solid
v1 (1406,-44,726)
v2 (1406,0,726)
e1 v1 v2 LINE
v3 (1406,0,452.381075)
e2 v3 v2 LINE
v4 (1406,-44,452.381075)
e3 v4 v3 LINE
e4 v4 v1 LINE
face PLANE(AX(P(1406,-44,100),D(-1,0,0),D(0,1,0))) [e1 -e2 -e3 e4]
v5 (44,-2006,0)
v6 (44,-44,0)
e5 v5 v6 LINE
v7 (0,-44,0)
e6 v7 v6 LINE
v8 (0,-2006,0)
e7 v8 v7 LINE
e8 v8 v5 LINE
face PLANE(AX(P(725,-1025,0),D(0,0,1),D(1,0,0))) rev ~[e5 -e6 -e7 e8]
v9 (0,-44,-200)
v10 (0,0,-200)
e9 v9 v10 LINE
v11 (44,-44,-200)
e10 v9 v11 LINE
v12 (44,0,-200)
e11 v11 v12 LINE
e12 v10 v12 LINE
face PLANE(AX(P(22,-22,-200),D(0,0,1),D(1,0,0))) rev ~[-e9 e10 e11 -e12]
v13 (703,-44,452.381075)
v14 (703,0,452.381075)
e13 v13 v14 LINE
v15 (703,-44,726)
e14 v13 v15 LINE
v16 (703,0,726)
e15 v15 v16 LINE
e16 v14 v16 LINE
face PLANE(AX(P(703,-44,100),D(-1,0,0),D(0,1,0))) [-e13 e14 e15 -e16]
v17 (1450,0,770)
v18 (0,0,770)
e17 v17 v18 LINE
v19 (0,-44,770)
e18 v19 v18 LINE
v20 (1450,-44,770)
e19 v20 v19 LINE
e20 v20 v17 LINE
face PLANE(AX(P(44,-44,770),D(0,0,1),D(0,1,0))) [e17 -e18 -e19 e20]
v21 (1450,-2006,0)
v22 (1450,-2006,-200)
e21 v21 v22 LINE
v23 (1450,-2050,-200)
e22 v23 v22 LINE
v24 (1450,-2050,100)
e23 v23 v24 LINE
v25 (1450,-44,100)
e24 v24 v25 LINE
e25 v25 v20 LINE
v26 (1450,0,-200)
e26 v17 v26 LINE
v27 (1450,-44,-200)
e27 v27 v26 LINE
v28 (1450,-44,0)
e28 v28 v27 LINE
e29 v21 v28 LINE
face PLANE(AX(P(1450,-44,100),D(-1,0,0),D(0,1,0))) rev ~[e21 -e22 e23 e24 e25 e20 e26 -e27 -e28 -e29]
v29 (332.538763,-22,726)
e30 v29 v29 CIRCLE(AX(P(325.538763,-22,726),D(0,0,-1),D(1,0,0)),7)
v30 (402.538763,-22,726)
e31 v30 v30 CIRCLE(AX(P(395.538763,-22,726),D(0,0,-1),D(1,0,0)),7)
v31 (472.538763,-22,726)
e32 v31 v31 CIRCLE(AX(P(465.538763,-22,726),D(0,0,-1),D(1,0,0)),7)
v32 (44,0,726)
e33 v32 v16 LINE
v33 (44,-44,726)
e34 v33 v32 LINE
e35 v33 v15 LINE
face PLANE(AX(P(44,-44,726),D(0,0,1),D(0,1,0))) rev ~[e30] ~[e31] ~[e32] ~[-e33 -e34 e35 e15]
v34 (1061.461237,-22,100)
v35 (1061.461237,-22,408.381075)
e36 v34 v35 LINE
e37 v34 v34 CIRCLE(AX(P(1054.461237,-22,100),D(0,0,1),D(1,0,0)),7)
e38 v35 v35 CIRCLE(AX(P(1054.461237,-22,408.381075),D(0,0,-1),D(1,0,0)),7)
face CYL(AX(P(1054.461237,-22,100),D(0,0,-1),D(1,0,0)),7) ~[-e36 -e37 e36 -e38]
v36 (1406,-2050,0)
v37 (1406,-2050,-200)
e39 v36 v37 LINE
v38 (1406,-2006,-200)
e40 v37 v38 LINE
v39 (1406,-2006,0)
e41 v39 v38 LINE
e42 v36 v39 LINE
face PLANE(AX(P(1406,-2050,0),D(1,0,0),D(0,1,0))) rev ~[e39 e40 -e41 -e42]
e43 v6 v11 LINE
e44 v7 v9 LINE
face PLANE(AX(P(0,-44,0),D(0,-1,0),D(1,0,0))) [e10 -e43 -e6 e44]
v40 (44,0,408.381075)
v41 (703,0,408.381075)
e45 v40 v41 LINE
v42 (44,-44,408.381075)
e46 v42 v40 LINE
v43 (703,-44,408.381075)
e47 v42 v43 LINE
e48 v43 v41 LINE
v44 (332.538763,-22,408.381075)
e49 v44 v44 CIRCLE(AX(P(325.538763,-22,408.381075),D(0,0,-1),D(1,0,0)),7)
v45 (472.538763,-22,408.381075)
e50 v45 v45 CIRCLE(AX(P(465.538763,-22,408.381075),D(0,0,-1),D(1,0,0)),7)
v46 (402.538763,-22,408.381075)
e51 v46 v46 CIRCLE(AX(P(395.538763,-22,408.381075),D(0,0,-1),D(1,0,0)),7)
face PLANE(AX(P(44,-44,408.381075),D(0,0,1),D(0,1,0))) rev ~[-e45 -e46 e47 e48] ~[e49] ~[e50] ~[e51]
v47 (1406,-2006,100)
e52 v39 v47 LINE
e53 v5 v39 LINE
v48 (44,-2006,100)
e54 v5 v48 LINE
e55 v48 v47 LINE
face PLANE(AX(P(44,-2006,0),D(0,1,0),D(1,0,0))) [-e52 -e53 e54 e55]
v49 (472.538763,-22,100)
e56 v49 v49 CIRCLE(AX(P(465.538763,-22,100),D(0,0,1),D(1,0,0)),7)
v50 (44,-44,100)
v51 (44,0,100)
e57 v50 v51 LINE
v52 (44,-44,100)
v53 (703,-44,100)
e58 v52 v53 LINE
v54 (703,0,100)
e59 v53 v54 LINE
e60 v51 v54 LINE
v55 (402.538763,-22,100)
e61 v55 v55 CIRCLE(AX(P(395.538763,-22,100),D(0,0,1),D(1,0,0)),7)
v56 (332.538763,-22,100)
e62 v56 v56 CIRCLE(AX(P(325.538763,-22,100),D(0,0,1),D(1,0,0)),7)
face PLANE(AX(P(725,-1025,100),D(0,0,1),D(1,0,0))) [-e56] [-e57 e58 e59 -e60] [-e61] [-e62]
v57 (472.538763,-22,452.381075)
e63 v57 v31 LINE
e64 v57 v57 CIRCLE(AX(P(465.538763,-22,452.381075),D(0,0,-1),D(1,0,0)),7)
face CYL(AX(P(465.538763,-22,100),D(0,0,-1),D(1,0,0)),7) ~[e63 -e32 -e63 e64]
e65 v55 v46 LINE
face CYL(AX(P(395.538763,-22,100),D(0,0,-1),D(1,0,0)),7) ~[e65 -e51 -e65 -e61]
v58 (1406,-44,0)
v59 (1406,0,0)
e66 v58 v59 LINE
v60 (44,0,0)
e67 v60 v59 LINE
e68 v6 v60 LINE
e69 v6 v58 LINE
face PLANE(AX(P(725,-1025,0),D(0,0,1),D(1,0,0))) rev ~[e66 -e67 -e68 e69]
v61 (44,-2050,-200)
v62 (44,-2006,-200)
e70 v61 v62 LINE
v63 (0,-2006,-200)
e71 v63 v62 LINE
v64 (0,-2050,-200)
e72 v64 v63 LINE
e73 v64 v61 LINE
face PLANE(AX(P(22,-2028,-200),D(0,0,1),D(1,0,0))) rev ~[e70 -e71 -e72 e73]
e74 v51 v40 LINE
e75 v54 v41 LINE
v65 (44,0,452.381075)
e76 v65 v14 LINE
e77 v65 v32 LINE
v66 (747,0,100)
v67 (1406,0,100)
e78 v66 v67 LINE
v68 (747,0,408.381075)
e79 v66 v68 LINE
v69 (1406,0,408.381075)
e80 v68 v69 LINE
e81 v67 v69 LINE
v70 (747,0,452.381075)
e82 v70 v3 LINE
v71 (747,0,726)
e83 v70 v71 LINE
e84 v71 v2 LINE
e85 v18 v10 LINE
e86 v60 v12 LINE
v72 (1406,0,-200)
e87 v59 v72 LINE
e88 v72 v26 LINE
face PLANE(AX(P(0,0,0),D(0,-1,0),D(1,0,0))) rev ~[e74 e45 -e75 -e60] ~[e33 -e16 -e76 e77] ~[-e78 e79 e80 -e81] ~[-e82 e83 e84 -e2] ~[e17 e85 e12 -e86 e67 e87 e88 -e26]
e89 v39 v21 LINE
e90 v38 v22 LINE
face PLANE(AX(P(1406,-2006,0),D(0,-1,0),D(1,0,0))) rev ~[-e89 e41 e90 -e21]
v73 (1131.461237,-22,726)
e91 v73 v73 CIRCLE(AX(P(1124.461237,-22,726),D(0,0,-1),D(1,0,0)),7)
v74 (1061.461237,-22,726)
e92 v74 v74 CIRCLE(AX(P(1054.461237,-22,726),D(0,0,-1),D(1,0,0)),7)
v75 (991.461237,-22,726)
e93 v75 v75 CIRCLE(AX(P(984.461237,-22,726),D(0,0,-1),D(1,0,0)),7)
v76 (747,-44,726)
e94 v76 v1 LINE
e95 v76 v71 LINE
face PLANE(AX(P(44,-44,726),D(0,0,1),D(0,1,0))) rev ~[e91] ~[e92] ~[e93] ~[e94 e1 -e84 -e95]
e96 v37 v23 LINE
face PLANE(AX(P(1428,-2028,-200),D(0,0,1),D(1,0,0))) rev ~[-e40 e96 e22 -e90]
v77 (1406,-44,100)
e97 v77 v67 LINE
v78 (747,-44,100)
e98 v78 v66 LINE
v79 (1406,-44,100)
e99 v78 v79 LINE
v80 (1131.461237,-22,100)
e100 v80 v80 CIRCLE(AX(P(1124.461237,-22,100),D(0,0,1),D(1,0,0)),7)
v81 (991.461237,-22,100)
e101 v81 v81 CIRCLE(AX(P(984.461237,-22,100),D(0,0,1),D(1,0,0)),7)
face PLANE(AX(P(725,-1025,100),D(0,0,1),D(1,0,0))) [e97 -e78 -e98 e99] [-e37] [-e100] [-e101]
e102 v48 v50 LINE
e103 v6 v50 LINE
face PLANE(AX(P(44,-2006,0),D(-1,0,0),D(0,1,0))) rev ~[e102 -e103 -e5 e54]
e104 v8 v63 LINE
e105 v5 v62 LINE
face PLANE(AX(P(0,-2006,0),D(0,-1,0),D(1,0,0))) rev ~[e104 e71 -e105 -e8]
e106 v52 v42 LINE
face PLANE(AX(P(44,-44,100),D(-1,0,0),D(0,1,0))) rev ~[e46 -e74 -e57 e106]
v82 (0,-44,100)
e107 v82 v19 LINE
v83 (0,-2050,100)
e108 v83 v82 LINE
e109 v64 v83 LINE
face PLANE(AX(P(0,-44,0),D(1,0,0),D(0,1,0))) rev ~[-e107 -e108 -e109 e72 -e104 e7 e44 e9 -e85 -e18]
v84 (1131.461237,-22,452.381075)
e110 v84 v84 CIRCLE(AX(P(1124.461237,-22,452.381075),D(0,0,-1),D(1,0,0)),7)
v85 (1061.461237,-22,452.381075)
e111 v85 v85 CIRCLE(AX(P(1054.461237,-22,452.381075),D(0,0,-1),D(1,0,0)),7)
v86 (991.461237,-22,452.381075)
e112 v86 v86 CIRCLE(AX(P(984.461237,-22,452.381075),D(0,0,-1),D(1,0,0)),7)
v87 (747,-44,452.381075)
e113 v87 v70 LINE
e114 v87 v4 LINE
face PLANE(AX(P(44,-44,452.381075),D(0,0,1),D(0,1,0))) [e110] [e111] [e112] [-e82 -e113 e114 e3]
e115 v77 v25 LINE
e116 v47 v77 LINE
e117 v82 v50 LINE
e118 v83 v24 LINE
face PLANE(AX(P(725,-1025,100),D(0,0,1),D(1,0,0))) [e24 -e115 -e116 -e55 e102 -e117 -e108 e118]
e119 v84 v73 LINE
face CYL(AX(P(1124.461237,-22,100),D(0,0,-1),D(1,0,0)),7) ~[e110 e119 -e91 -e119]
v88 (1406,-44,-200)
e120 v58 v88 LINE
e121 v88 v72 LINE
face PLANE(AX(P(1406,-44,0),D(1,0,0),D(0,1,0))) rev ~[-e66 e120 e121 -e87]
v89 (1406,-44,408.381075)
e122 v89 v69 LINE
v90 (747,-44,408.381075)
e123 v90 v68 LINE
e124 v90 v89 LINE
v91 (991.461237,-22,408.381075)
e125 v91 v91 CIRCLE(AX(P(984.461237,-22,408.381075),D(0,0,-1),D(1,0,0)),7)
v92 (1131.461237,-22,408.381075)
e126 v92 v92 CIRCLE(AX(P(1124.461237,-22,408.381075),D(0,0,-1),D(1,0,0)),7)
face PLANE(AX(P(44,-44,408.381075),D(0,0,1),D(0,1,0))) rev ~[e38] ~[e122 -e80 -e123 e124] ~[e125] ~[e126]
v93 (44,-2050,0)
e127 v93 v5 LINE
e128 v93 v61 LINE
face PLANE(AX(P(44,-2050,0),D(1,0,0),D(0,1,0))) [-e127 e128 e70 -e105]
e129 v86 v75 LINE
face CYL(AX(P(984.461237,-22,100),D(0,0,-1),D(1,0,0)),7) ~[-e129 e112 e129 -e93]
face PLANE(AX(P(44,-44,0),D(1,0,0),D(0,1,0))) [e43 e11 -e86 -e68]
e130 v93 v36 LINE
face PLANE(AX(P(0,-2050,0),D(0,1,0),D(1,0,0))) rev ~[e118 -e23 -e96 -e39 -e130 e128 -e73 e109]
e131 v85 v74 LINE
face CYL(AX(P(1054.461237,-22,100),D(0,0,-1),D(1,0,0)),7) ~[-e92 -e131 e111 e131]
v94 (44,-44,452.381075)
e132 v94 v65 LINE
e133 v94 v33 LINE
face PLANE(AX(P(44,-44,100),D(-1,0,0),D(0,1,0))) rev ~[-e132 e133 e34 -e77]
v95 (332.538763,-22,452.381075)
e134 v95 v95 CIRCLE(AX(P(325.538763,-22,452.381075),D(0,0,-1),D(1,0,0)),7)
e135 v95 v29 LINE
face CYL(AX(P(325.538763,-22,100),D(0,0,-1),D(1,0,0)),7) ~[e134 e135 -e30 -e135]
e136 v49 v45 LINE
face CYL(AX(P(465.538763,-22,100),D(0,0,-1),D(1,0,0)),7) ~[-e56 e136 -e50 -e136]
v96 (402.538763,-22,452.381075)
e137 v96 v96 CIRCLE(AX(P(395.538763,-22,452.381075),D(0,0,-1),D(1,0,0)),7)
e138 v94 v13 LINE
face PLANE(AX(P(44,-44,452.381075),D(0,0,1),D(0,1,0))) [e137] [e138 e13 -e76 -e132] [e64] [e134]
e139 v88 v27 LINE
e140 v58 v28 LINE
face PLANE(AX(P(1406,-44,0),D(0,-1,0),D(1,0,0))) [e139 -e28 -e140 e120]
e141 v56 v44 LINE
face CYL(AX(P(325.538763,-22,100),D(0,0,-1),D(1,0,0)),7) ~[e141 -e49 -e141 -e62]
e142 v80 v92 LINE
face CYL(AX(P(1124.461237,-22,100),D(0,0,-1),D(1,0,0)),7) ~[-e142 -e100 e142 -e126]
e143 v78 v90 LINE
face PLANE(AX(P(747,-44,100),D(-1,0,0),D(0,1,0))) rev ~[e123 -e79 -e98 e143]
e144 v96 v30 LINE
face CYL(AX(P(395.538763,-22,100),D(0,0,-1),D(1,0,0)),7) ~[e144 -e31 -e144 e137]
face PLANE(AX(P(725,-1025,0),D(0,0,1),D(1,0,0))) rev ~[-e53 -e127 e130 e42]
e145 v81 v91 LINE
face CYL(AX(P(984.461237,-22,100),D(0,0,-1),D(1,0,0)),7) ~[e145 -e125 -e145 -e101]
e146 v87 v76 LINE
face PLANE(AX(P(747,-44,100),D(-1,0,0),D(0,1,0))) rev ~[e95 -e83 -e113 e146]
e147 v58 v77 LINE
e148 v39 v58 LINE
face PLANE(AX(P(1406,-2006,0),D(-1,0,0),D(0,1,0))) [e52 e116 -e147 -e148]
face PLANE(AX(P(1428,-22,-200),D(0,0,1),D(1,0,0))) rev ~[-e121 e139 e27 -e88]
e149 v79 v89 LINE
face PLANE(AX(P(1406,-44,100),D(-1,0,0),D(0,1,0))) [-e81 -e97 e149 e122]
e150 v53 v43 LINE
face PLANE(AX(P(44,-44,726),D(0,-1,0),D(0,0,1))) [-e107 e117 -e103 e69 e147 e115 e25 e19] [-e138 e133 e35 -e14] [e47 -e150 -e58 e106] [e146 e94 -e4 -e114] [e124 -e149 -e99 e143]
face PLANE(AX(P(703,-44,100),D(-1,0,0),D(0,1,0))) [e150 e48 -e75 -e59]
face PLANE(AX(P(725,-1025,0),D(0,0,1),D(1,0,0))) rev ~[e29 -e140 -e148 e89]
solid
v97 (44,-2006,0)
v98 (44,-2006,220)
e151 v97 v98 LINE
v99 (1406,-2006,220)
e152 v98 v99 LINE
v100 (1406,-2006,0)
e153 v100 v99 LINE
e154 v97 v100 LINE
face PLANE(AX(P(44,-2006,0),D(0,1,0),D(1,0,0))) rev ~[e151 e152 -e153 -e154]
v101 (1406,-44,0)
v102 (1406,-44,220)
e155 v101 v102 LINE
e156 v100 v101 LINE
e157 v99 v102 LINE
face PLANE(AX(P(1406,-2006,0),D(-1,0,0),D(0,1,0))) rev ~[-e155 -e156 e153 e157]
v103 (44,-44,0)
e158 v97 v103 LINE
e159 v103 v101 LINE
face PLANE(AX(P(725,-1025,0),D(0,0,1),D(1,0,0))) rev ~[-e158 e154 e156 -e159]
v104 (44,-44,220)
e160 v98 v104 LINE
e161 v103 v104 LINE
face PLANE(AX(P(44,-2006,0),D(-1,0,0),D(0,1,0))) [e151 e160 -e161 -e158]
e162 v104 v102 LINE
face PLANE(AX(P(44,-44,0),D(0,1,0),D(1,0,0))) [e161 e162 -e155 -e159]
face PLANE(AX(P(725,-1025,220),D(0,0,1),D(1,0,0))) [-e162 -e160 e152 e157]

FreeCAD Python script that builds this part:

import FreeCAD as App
import Part
import Sketcher

V = App.Vector


def add_polygon(sketch, points):
    """Adds a closed chain of lines whose ends are joined by coincident constraints."""
    first, n = sketch.GeometryCount, len(points)
    for a, b in zip(points, points[1:] + points[:1]):
        sketch.addGeometry(Part.LineSegment(App.Vector(*a, 0), App.Vector(*b, 0)), False)
    for i in range(n):
        sketch.addConstraint(Sketcher.Constraint("Coincident", first + i, 2, first + (i + 1) % n, 1))

doc = App.newDocument("Part")
params = doc.addObject("Spreadsheet::Sheet", "Params")
for row, (alias, value) in enumerate([
    ("sketch1_width", "1450 mm"),
    ("sketch1_width2", "1362 mm"),
    ("sketch1_height", "2050 mm"),
    ("sketch1_height2", "1962 mm"),
    ("pad1_length", "100 mm"),
    ("sketch2_diameter", "14 mm"),
    ("sketch2_width", "44 mm"),
    ("pad2_length", "670 mm"),
    ("sketch3_width", "44 mm"),
    ("sketch4_width", "44 mm"),
    ("pad4_length", "200 mm"),
    ("sketch5_width", "1362 mm"),
    ("sketch5_height", "1962 mm"),
    ("pad5_length", "220 mm"),
], start=1):
    params.set(f"A{row}", alias)
    params.set(f"B{row}", "=" + value)
    params.setAlias(f"B{row}", alias)

body = doc.addObject("PartDesign::Body", "Body")

# Sketch on XY plane
sketch1 = body.newObject("Sketcher::SketchObject", "Sketch")
sketch1.AttachmentSupport = (doc.getObject("XY_Plane"), [""])
sketch1.MapMode = "FlatFace"
add_polygon(sketch1, [(0, 0), (0, -2050), (1450, -2050), (1450, 0)])  # lines 0-3
add_polygon(sketch1, [(1406, -2006), (44, -2006), (44, -44), (1406, -44)])  # lines 4-7
sketch1.addConstraint([
    Sketcher.Constraint("Vertical", 0),
    Sketcher.Constraint("Horizontal", 1),
    Sketcher.Constraint("Vertical", 2),
    Sketcher.Constraint("Horizontal", 3),
    Sketcher.Constraint("Horizontal", 4),
    Sketcher.Constraint("Vertical", 5),
    Sketcher.Constraint("Horizontal", 6),
    Sketcher.Constraint("Vertical", 7),
    Sketcher.Constraint("Coincident", 3, 2, -1, 1),
    Sketcher.Constraint("DistanceX", 1, 1, 1, 2, 1450.0),
    Sketcher.Constraint("DistanceX", 4, 2, 4, 1, 1362.0),
    Sketcher.Constraint("DistanceY", 0, 2, 0, 1, 2050.0),
    Sketcher.Constraint("DistanceY", 5, 1, 5, 2, 1962.0),
    Sketcher.Constraint("DistanceX", -1, 1, 4, 2, 44.0),
    Sketcher.Constraint("DistanceY", 4, 2, -1, 1, 2006.0),
])
sketch1.setExpression("Constraints[17]", "Params.sketch1_width")
sketch1.setExpression("Constraints[18]", "Params.sketch1_width2")
sketch1.setExpression("Constraints[19]", "Params.sketch1_height")
sketch1.setExpression("Constraints[20]", "Params.sketch1_height2")
pad1 = body.newObject("PartDesign::Pad", "Pad")
pad1.Profile = sketch1
pad1.setExpression("Length", "Params.pad1_length")

# Sketch on XY plane
sketch2 = body.newObject("Sketcher::SketchObject", "Sketch001")
sketch2.AttachmentSupport = (doc.getObject("XY_Plane"), [""])
sketch2.MapMode = "FlatFace"
sketch2.AttachmentOffset = App.Placement(V(0, 0, 100), App.Rotation())
add_polygon(sketch2, [(1406, 0), (1406, -44), (1450, -44), (1450, 0)])  # lines 0-3
add_polygon(sketch2, [(0, 0), (0, -44), (44, -44), (44, 0)])  # lines 4-7
add_polygon(sketch2, [(703, 0), (703, -44), (747, -44), (747, 0)])  # lines 8-11
sketch2.addGeometry(Part.Circle(V(1054.461237, -22, 0), V(0, 0, 1), 7), False)  # 12
sketch2.addGeometry(Part.Circle(V(984.461237, -22, 0), V(0, 0, 1), 7), False)  # 13
sketch2.addGeometry(Part.Circle(V(1124.461237, -22, 0), V(0, 0, 1), 7), False)  # 14
sketch2.addGeometry(Part.Circle(V(465.538763, -22, 0), V(0, 0, 1), 7), False)  # 15
sketch2.addGeometry(Part.Circle(V(395.538763, -22, 0), V(0, 0, 1), 7), False)  # 16
sketch2.addGeometry(Part.Circle(V(325.538763, -22, 0), V(0, 0, 1), 7), False)  # 17
sketch2.addConstraint([
    Sketcher.Constraint("Vertical", 0),
    Sketcher.Constraint("Horizontal", 1),
    Sketcher.Constraint("Vertical", 2),
    Sketcher.Constraint("Horizontal", 3),
    Sketcher.Constraint("Vertical", 4),
    Sketcher.Constraint("Horizontal", 5),
    Sketcher.Constraint("Vertical", 6),
    Sketcher.Constraint("Horizontal", 7),
    Sketcher.Constraint("Vertical", 8),
    Sketcher.Constraint("Horizontal", 9),
    Sketcher.Constraint("Vertical", 10),
    Sketcher.Constraint("Horizontal", 11),
    Sketcher.Constraint("Coincident", 7, 2, -1, 1),
    Sketcher.Constraint("Equal", 12, 13),
    Sketcher.Constraint("Equal", 13, 14),
    Sketcher.Constraint("Equal", 14, 15),
    Sketcher.Constraint("Equal", 15, 16),
    Sketcher.Constraint("Equal", 16, 17),
    Sketcher.Constraint("PointOnObject", 2, 2, -1),
    Sketcher.Constraint("PointOnObject", 10, 2, -1),
    Sketcher.Constraint("Horizontal", 12, 3, 13, 3),
    Sketcher.Constraint("Horizontal", 13, 3, 14, 3),
    Sketcher.Constraint("Horizontal", 14, 3, 15, 3),
    Sketcher.Constraint("Horizontal", 15, 3, 16, 3),
    Sketcher.Constraint("Horizontal", 16, 3, 17, 3),
    Sketcher.Constraint("Horizontal", 1, 2, 4, 2),
    Sketcher.Constraint("Horizontal", 5, 2, 8, 2),
    Sketcher.Constraint("Equal", 3, 5),
    Sketcher.Constraint("Equal", 7, 9),
    Sketcher.Constraint("Equal", 11, 0),
    Sketcher.Constraint("Diameter", 12, 14.0),
    Sketcher.Constraint("DistanceX", 1, 1, 1, 2, 44.0),
    Sketcher.Constraint("DistanceY", 12, 3, -1, 1, 22.0),
    Sketcher.Constraint("DistanceX", -1, 1, 0, 2, 1406.0),
    Sketcher.Constraint("DistanceX", -1, 1, 8, 2, 703.0),
    Sketcher.Constraint("DistanceX", 13, 3, 12, 3, 70.0),
    Sketcher.Constraint("DistanceX", 12, 3, 14, 3, 70.0),
    Sketcher.Constraint("DistanceX", 16, 3, 15, 3, 70.0),
    Sketcher.Constraint("DistanceX", 17, 3, 16, 3, 70.0),
    Sketcher.Constraint("DistanceX", -1, 1, 12, 3, 1054.461237),
    Sketcher.Constraint("DistanceX", -1, 1, 15, 3, 465.538763),
])
sketch2.setExpression("Constraints[42]", "Params.sketch2_diameter")
sketch2.setExpression("Constraints[43]", "Params.sketch2_width")
pad2 = body.newObject("PartDesign::Pad", "Pad001")
pad2.Profile = sketch2
pad2.setExpression("Length", "Params.pad2_length")

# Sketch on YZ plane
sketch3 = body.newObject("Sketcher::SketchObject", "Sketch002")
sketch3.AttachmentSupport = (doc.getObject("YZ_Plane"), [""])
sketch3.MapMode = "FlatFace"
sketch3.AttachmentOffset = App.Placement(V(0, 0, 44), App.Rotation())
add_polygon(sketch3, [(-44, 770), (-44, 726), (0, 726), (0, 770)])  # lines 0-3
add_polygon(sketch3, [(-44, 452.381075), (-44, 408.381075), (0, 408.381075), (0, 452.381075)])  # lines 4-7
sketch3.addConstraint([
    Sketcher.Constraint("Vertical", 0),
    Sketcher.Constraint("Horizontal", 1),
    Sketcher.Constraint("Vertical", 2),
    Sketcher.Constraint("Horizontal", 3),
    Sketcher.Constraint("Vertical", 4),
    Sketcher.Constraint("Horizontal", 5),
    Sketcher.Constraint("Vertical", 6),
    Sketcher.Constraint("Horizontal", 7),
    Sketcher.Constraint("PointOnObject", 1, 2, -2),
    Sketcher.Constraint("PointOnObject", 5, 2, -2),
    Sketcher.Constraint("Vertical", 3, 2, 4, 2),
    Sketcher.Constraint("Equal", 7, 0),
    Sketcher.Constraint("Equal", 2, 4),
    Sketcher.Constraint("DistanceX", 1, 1, 1, 2, 44.0),
    Sketcher.Constraint("DistanceY", -1, 1, 0, 2, 726.0),
    Sketcher.Constraint("DistanceY", -1, 1, 4, 2, 408.381075),
])
sketch3.setExpression("Constraints[21]", "Params.sketch3_width")
pad3 = body.newObject("PartDesign::Pad", "Pad002")
pad3.Profile = sketch3
pad3.Type = "UpToLast"

# Sketch on XY plane
sketch4 = body.newObject("Sketcher::SketchObject", "Sketch003")
sketch4.AttachmentSupport = (doc.getObject("XY_Plane"), [""])
sketch4.MapMode = "FlatFace"
add_polygon(sketch4, [(0, 0), (0, -44), (44, -44), (44, 0)])  # lines 0-3
add_polygon(sketch4, [(1406, 0), (1406, -44), (1450, -44), (1450, 0)])  # lines 4-7
add_polygon(sketch4, [(1406, -2006), (1406, -2050), (1450, -2050), (1450, -2006)])  # lines 8-11
add_polygon(sketch4, [(0, -2006), (0, -2050), (44, -2050), (44, -2006)])  # lines 12-15
sketch4.addConstraint([
    Sketcher.Constraint("Vertical", 0),
    Sketcher.Constraint("Horizontal", 1),
    Sketcher.Constraint("Vertical", 2),
    Sketcher.Constraint("Horizontal", 3),
    Sketcher.Constraint("Vertical", 4),
    Sketcher.Constraint("Horizontal", 5),
    Sketcher.Constraint("Vertical", 6),
    Sketcher.Constraint("Horizontal", 7),
    Sketcher.Constraint("Vertical", 8),
    Sketcher.Constraint("Horizontal", 9),
    Sketcher.Constraint("Vertical", 10),
    Sketcher.Constraint("Horizontal", 11),
    Sketcher.Constraint("Vertical", 12),
    Sketcher.Constraint("Horizontal", 13),
    Sketcher.Constraint("Vertical", 14),
    Sketcher.Constraint("Horizontal", 15),
    Sketcher.Constraint("Coincident", 3, 2, -1, 1),
    Sketcher.Constraint("PointOnObject", 6, 2, -1),
    Sketcher.Constraint("PointOnObject", 12, 2, -2),
    Sketcher.Constraint("Horizontal", 1, 2, 4, 2),
    Sketcher.Constraint("Horizontal", 9, 2, 12, 2),
    Sketcher.Constraint("Horizontal", 11, 2, 14, 2),
    Sketcher.Constraint("Vertical", 7, 2, 8, 2),
    Sketcher.Constraint("Vertical", 6, 2, 9, 2),
    Sketcher.Constraint("Vertical", 2, 2, 13, 2),
    Sketcher.Constraint("Equal", 3, 5),
    Sketcher.Constraint("Equal", 15, 0),
    Sketcher.Constraint("Equal", 6, 8),
    Sketcher.Constraint("DistanceX", 1, 1, 1, 2, 44.0),
    Sketcher.Constraint("DistanceX", -1, 1, 4, 2, 1406.0),
    Sketcher.Constraint("DistanceY", 8, 2, -1, 1, 2050.0),
])
sketch4.setExpression("Constraints[44]", "Params.sketch4_width")
pad4 = body.newObject("PartDesign::Pad", "Pad003")
pad4.Profile = sketch4
pad4.setExpression("Length", "Params.pad4_length")
pad4.Reversed = True
body2 = doc.addObject("PartDesign::Body", "Body001")

# Sketch on XY plane
sketch5 = body2.newObject("Sketcher::SketchObject", "Sketch004")
sketch5.AttachmentSupport = (doc.getObject("XY_Plane001"), [""])
sketch5.MapMode = "FlatFace"
add_polygon(sketch5, [(44, -44), (44, -2006), (1406, -2006), (1406, -44)])  # lines 0-3
sketch5.addConstraint([
    Sketcher.Constraint("Vertical", 0),
    Sketcher.Constraint("Horizontal", 1),
    Sketcher.Constraint("Vertical", 2),
    Sketcher.Constraint("Horizontal", 3),
    Sketcher.Constraint("DistanceX", 1, 1, 1, 2, 1362.0),
    Sketcher.Constraint("DistanceY", 0, 2, 0, 1, 1962.0),
    Sketcher.Constraint("DistanceX", -1, 1, 0, 2, 44.0),
    Sketcher.Constraint("DistanceY", 0, 2, -1, 1, 2006.0),
])
sketch5.setExpression("Constraints[8]", "Params.sketch5_width")
sketch5.setExpression("Constraints[9]", "Params.sketch5_height")
pad5 = body2.newObject("PartDesign::Pad", "Pad004")
pad5.Profile = sketch5
pad5.setExpression("Length", "Params.pad5_length")

doc.recompute()
